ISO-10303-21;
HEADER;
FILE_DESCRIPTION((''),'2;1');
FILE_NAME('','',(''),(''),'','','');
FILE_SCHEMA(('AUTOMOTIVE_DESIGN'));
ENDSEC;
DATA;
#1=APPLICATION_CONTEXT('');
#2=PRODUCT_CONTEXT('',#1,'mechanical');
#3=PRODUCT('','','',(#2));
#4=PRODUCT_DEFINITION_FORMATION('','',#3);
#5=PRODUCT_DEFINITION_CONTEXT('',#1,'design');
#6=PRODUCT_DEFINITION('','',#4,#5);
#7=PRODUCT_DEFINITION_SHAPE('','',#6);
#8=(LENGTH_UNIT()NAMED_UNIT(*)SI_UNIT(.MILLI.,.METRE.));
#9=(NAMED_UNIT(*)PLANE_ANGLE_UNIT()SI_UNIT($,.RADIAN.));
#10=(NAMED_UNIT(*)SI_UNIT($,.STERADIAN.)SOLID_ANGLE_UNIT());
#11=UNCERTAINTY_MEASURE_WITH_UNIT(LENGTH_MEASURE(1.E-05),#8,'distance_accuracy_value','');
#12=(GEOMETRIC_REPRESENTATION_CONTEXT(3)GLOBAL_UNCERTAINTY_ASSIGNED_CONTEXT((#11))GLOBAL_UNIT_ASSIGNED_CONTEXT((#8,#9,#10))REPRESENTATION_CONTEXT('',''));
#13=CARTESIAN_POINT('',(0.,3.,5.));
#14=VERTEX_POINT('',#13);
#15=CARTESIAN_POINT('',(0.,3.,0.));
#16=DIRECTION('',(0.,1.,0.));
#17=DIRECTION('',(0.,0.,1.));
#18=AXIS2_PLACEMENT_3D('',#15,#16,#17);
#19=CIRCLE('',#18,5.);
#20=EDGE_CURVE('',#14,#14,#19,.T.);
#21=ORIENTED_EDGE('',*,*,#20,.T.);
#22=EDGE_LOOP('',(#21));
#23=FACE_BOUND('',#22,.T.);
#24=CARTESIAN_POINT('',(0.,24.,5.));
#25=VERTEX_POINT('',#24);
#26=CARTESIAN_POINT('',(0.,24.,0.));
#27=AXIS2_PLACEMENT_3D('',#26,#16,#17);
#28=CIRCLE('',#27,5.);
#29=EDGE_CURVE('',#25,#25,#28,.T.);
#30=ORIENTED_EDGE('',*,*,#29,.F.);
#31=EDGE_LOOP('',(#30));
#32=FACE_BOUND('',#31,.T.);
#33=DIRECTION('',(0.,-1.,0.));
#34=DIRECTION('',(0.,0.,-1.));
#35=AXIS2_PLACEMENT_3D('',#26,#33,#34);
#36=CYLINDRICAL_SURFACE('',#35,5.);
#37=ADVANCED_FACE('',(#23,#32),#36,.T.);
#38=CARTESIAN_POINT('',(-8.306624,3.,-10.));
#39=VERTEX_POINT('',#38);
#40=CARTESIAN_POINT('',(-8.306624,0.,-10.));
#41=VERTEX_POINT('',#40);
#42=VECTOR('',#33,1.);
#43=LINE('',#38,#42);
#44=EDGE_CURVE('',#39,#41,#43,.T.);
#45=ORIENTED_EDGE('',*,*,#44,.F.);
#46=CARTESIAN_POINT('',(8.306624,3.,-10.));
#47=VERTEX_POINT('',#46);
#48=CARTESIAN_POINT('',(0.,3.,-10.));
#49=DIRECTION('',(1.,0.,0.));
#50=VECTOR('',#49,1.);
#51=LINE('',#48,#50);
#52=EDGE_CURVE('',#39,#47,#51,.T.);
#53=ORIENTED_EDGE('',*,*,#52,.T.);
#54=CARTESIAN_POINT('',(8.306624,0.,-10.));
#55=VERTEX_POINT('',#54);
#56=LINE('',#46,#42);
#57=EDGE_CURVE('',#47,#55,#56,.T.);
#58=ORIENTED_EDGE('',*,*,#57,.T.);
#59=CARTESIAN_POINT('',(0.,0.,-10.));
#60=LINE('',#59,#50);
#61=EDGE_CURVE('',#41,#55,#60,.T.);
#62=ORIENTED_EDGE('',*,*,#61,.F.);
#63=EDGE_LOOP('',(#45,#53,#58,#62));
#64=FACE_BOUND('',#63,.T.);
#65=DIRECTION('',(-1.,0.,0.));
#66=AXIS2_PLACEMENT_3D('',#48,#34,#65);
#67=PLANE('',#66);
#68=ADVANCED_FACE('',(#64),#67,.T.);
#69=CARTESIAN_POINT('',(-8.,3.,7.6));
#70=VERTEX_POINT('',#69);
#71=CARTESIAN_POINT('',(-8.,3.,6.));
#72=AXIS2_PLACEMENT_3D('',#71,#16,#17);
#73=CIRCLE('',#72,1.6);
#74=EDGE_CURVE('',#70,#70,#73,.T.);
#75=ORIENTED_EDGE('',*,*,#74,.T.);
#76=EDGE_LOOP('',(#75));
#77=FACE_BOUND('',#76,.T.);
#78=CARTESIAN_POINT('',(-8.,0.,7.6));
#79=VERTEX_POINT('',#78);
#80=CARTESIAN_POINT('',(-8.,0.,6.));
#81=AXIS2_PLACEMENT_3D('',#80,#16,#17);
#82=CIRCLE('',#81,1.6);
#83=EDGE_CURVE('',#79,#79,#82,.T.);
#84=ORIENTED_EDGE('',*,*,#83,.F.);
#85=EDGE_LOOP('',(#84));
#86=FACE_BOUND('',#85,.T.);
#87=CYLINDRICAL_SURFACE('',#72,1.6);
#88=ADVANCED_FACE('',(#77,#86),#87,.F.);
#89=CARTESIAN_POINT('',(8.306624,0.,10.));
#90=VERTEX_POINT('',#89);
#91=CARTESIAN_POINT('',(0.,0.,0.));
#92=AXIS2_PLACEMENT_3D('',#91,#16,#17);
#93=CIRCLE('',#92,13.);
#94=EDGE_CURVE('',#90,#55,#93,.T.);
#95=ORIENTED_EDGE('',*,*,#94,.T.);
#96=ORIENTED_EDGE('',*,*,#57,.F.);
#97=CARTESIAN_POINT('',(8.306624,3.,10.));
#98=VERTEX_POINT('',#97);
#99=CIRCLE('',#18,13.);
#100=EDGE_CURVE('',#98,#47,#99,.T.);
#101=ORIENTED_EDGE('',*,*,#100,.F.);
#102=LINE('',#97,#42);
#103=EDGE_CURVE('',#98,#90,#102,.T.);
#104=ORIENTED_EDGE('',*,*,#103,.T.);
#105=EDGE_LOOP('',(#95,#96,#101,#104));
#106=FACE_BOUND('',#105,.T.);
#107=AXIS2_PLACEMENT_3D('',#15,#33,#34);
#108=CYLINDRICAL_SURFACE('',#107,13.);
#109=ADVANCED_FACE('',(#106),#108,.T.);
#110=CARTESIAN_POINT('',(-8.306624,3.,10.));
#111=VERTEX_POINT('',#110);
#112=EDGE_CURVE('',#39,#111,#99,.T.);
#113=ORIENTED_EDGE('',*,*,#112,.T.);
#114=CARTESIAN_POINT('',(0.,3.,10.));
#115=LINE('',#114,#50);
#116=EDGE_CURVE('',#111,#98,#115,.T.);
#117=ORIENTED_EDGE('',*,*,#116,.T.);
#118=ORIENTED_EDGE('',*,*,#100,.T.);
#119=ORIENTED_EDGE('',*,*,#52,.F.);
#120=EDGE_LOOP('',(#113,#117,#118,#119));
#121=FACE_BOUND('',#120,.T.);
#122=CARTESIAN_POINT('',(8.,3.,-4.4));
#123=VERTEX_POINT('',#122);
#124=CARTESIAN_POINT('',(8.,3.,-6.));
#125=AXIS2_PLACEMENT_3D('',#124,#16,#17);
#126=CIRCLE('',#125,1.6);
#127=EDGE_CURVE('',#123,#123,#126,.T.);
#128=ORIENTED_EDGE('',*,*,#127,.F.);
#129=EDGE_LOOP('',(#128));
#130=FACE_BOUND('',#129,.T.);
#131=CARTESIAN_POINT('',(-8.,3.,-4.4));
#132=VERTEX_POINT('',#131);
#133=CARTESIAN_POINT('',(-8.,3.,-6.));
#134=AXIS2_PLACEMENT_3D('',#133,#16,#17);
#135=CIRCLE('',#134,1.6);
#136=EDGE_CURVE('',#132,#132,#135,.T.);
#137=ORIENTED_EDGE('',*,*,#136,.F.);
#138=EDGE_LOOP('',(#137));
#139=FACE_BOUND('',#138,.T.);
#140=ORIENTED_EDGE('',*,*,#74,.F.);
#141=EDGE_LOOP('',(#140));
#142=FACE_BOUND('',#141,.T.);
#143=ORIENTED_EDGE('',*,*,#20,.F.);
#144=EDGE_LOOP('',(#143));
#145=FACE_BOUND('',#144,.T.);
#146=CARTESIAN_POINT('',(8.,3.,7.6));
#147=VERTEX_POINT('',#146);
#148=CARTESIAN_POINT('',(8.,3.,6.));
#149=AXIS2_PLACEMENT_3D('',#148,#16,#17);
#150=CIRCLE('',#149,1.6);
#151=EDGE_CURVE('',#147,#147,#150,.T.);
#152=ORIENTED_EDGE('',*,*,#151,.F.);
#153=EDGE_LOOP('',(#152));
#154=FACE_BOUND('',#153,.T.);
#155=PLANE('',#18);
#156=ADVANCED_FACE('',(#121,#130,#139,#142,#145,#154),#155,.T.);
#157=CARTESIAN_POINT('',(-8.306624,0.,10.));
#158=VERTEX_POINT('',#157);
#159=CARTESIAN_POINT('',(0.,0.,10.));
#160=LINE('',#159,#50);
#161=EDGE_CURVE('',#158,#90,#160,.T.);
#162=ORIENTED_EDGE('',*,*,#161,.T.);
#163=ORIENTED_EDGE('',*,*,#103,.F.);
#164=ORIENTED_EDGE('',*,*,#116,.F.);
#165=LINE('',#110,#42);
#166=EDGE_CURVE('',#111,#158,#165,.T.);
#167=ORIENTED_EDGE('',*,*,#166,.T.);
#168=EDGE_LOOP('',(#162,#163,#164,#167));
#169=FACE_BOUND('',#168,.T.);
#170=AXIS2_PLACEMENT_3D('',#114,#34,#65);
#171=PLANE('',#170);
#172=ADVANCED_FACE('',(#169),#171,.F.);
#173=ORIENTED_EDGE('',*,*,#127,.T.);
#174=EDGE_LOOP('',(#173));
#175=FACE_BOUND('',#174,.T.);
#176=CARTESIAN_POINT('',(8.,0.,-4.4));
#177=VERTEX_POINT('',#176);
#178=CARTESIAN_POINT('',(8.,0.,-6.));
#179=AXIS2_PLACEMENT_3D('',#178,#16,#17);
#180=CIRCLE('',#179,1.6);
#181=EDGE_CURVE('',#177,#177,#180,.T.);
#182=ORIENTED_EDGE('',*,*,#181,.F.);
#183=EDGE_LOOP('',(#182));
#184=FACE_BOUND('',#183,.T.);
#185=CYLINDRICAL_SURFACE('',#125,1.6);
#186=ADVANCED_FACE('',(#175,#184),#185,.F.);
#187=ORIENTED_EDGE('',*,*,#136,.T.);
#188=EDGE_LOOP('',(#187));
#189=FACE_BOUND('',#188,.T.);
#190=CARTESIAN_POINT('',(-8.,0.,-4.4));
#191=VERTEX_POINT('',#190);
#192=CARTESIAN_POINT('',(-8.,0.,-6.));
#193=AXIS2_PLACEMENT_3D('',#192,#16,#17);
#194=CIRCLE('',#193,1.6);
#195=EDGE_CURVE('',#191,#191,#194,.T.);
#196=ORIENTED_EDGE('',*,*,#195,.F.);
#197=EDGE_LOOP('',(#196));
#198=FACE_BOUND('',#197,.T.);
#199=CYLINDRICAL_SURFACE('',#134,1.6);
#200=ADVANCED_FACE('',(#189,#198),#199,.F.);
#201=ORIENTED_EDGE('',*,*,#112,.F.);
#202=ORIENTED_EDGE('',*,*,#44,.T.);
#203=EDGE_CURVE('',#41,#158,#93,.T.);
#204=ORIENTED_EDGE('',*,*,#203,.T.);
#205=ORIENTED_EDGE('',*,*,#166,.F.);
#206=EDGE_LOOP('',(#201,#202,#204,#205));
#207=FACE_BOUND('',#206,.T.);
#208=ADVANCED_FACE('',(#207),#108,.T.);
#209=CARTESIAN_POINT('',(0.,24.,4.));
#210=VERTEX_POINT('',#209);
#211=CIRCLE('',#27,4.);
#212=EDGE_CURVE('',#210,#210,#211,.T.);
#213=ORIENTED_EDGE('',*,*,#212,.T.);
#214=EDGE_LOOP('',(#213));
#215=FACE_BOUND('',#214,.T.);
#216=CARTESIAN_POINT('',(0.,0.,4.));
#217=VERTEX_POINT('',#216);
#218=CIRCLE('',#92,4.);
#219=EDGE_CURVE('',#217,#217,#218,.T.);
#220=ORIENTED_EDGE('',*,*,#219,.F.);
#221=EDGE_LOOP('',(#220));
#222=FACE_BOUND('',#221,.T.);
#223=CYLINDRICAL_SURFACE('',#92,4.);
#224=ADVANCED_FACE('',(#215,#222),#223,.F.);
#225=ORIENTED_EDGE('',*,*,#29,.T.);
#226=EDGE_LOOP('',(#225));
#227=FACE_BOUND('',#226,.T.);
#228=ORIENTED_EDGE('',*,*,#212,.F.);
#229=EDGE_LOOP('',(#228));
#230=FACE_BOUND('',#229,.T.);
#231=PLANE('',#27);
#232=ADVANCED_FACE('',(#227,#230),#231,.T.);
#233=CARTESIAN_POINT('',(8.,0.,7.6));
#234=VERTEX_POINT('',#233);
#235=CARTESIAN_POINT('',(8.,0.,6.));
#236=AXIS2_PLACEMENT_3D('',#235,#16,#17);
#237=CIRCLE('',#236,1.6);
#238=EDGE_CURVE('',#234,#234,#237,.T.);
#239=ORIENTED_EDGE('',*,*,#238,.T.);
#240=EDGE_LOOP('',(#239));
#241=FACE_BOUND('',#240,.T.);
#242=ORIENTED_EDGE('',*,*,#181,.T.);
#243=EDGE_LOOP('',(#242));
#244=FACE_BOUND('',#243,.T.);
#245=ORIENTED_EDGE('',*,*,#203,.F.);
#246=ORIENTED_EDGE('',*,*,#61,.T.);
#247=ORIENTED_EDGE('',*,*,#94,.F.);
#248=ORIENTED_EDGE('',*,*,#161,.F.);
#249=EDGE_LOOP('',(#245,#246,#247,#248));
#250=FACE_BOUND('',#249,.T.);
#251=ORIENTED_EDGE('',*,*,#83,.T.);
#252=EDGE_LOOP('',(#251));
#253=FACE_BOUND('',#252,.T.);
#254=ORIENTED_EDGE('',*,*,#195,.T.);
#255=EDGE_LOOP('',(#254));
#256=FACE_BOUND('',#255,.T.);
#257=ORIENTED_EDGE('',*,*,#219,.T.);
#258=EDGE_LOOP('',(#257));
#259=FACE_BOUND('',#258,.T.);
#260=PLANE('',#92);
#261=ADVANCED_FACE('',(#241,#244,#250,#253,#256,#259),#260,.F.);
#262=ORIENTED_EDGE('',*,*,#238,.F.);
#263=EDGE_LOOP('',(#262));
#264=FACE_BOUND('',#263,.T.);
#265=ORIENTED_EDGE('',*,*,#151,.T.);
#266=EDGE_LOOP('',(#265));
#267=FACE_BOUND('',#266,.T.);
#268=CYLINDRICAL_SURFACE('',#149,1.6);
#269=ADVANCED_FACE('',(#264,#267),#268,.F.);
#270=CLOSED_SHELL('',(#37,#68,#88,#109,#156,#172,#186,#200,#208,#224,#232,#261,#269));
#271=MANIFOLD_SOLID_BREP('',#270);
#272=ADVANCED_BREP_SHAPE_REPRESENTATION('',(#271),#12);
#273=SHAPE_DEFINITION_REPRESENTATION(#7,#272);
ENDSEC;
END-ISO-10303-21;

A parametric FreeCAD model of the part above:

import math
import FreeCAD as App
import Part
import Sketcher

doc = App.newDocument("Part")
body = doc.addObject("PartDesign::Body", "Body")

# Sketch on XZ plane
sketch1 = doc.addObject("Sketcher::SketchObject", "Sketch")
body.addObject(sketch1)
sketch1.AttachmentSupport = (doc.XZ_Plane, [""])
sketch1.MapMode = "FlatFace"
sketch1.addGeometry(Part.Circle(App.Vector(0, 0, 0), App.Vector(0, 0, 1), 5), False)
sketch1.addConstraint(Sketcher.Constraint("Coincident", 0, 3, -1, 1))
sketch1.addConstraint(Sketcher.Constraint("Diameter", 0, 10.0))
pad1 = doc.addObject("PartDesign::Pad", "Pad")
body.addObject(pad1)
pad1.Profile = sketch1
pad1.Length = 24
pad1.Reversed = True

# Sketch on XZ plane
sketch2 = doc.addObject("Sketcher::SketchObject", "Sketch001")
body.addObject(sketch2)
sketch2.AttachmentSupport = (doc.XZ_Plane, [""])
sketch2.MapMode = "FlatFace"
sketch2.addGeometry(Part.LineSegment(App.Vector(8, -10, 0), App.Vector(-8, -10, 0)), False)
sketch2.addGeometry(Part.ArcOfCircle(Part.Circle(App.Vector(0, 0, 0), App.Vector(0, 0, 1), 13), math.radians(180), math.radians(230)), False)
sketch2.addGeometry(Part.ArcOfCircle(Part.Circle(App.Vector(0, 0, 0), App.Vector(0, 0, 1), 13), math.radians(130), math.radians(180)), False)
sketch2.addGeometry(Part.LineSegment(App.Vector(-8, 10, 0), App.Vector(8, 10, 0)), False)
sketch2.addGeometry(Part.ArcOfCircle(Part.Circle(App.Vector(0, 0, 0), App.Vector(0, 0, 1), 13), math.radians(0), math.radians(50)), False)
sketch2.addGeometry(Part.ArcOfCircle(Part.Circle(App.Vector(0, 0, 0), App.Vector(0, 0, 1), 13), math.radians(-50), math.radians(0)), False)
sketch2.addConstraint(Sketcher.Constraint("Coincident", 0, 2, 1, 2))
sketch2.addConstraint(Sketcher.Constraint("Tangent", 1, 1, 2, 2))
sketch2.addConstraint(Sketcher.Constraint("Coincident", 2, 1, 3, 1))
sketch2.addConstraint(Sketcher.Constraint("Coincident", 3, 2, 4, 2))
sketch2.addConstraint(Sketcher.Constraint("Tangent", 4, 1, 5, 2))
sketch2.addConstraint(Sketcher.Constraint("Coincident", 5, 1, 0, 1))
sketch2.addConstraint(Sketcher.Constraint("Horizontal", 0))
sketch2.addConstraint(Sketcher.Constraint("Horizontal", 3))
sketch2.addConstraint(Sketcher.Constraint("Coincident", 1, 3, -1, 1))
sketch2.addConstraint(Sketcher.Constraint("Coincident", 4, 3, -1, 1))
sketch2.addConstraint(Sketcher.Constraint("Equal", 1, 2))
sketch2.addConstraint(Sketcher.Constraint("Equal", 2, 4))
sketch2.addConstraint(Sketcher.Constraint("Equal", 4, 5))
sketch2.addConstraint(Sketcher.Constraint("PointOnObject", 1, 1, -1))
sketch2.addConstraint(Sketcher.Constraint("PointOnObject", 4, 1, -1))
sketch2.addConstraint(Sketcher.Constraint("Vertical", 0, 2, 2, 1))
sketch2.addConstraint(Sketcher.Constraint("Radius", 1, 13.0))
sketch2.addConstraint(Sketcher.Constraint("DistanceY", 0, 2, -1, 1, 10.0))
pad2 = doc.addObject("PartDesign::Pad", "Pad001")
body.addObject(pad2)
pad2.Profile = sketch2
pad2.Length = 3
pad2.Reversed = True

# Sketch on XZ plane
sketch3 = doc.addObject("Sketcher::SketchObject", "Sketch002")
body.addObject(sketch3)
sketch3.AttachmentSupport = (doc.XZ_Plane, [""])
sketch3.MapMode = "FlatFace"
sketch3.AttachmentOffset = App.Placement(App.Vector(0, 0, -24), App.Rotation())
sketch3.addGeometry(Part.Circle(App.Vector(0, 0, 0), App.Vector(0, 0, 1), 4), False)
sketch3.addConstraint(Sketcher.Constraint("Coincident", 0, 3, -1, 1))
sketch3.addConstraint(Sketcher.Constraint("Diameter", 0, 8.0))
pocket1 = doc.addObject("PartDesign::Pocket", "Pocket")
body.addObject(pocket1)
pocket1.Profile = sketch3
pocket1.Type = "ThroughAll"
pocket1.Reversed = True

# Sketch on XZ plane
sketch4 = doc.addObject("Sketcher::SketchObject", "Sketch003")
body.addObject(sketch4)
sketch4.AttachmentSupport = (doc.XZ_Plane, [""])
sketch4.MapMode = "FlatFace"
sketch4.AttachmentOffset = App.Placement(App.Vector(0, 0, -3), App.Rotation())
sketch4.addGeometry(Part.Circle(App.Vector(8, 6, 0), App.Vector(0, 0, 1), 1.6), False)
sketch4.addGeometry(Part.Circle(App.Vector(8, -6, 0), App.Vector(0, 0, 1), 1.6), False)
sketch4.addGeometry(Part.Circle(App.Vector(-8, -6, 0), App.Vector(0, 0, 1), 1.6), False)
sketch4.addGeometry(Part.Circle(App.Vector(-8, 6, 0), App.Vector(0, 0, 1), 1.6), False)
sketch4.addConstraint(Sketcher.Constraint("Equal", 0, 1))
sketch4.addConstraint(Sketcher.Constraint("Equal", 1, 2))
sketch4.addConstraint(Sketcher.Constraint("Equal", 2, 3))
sketch4.addConstraint(Sketcher.Constraint("Symmetric", 0, 3, 2, 3, -1, 1))
sketch4.addConstraint(Sketcher.Constraint("Symmetric", 1, 3, 3, 3, -1, 1))
sketch4.addConstraint(Sketcher.Constraint("Symmetric", 1, 3, 2, 3, -2))
sketch4.addConstraint(Sketcher.Constraint("Diameter", 0, 3.2))
sketch4.addConstraint(Sketcher.Constraint("DistanceX", -1, 1, 0, 3, 8.0))
sketch4.addConstraint(Sketcher.Constraint("DistanceY", -1, 1, 0, 3, 6.0))
doc.recompute()
hole = doc.addObject("PartDesign::Hole", "Hole")
body.addObject(hole)
hole.Profile = sketch4
hole.ThreadType = "None"
hole.Diameter = 3.2
hole.DepthType = "ThroughAll"
hole.Reversed = True

doc.recompute()
